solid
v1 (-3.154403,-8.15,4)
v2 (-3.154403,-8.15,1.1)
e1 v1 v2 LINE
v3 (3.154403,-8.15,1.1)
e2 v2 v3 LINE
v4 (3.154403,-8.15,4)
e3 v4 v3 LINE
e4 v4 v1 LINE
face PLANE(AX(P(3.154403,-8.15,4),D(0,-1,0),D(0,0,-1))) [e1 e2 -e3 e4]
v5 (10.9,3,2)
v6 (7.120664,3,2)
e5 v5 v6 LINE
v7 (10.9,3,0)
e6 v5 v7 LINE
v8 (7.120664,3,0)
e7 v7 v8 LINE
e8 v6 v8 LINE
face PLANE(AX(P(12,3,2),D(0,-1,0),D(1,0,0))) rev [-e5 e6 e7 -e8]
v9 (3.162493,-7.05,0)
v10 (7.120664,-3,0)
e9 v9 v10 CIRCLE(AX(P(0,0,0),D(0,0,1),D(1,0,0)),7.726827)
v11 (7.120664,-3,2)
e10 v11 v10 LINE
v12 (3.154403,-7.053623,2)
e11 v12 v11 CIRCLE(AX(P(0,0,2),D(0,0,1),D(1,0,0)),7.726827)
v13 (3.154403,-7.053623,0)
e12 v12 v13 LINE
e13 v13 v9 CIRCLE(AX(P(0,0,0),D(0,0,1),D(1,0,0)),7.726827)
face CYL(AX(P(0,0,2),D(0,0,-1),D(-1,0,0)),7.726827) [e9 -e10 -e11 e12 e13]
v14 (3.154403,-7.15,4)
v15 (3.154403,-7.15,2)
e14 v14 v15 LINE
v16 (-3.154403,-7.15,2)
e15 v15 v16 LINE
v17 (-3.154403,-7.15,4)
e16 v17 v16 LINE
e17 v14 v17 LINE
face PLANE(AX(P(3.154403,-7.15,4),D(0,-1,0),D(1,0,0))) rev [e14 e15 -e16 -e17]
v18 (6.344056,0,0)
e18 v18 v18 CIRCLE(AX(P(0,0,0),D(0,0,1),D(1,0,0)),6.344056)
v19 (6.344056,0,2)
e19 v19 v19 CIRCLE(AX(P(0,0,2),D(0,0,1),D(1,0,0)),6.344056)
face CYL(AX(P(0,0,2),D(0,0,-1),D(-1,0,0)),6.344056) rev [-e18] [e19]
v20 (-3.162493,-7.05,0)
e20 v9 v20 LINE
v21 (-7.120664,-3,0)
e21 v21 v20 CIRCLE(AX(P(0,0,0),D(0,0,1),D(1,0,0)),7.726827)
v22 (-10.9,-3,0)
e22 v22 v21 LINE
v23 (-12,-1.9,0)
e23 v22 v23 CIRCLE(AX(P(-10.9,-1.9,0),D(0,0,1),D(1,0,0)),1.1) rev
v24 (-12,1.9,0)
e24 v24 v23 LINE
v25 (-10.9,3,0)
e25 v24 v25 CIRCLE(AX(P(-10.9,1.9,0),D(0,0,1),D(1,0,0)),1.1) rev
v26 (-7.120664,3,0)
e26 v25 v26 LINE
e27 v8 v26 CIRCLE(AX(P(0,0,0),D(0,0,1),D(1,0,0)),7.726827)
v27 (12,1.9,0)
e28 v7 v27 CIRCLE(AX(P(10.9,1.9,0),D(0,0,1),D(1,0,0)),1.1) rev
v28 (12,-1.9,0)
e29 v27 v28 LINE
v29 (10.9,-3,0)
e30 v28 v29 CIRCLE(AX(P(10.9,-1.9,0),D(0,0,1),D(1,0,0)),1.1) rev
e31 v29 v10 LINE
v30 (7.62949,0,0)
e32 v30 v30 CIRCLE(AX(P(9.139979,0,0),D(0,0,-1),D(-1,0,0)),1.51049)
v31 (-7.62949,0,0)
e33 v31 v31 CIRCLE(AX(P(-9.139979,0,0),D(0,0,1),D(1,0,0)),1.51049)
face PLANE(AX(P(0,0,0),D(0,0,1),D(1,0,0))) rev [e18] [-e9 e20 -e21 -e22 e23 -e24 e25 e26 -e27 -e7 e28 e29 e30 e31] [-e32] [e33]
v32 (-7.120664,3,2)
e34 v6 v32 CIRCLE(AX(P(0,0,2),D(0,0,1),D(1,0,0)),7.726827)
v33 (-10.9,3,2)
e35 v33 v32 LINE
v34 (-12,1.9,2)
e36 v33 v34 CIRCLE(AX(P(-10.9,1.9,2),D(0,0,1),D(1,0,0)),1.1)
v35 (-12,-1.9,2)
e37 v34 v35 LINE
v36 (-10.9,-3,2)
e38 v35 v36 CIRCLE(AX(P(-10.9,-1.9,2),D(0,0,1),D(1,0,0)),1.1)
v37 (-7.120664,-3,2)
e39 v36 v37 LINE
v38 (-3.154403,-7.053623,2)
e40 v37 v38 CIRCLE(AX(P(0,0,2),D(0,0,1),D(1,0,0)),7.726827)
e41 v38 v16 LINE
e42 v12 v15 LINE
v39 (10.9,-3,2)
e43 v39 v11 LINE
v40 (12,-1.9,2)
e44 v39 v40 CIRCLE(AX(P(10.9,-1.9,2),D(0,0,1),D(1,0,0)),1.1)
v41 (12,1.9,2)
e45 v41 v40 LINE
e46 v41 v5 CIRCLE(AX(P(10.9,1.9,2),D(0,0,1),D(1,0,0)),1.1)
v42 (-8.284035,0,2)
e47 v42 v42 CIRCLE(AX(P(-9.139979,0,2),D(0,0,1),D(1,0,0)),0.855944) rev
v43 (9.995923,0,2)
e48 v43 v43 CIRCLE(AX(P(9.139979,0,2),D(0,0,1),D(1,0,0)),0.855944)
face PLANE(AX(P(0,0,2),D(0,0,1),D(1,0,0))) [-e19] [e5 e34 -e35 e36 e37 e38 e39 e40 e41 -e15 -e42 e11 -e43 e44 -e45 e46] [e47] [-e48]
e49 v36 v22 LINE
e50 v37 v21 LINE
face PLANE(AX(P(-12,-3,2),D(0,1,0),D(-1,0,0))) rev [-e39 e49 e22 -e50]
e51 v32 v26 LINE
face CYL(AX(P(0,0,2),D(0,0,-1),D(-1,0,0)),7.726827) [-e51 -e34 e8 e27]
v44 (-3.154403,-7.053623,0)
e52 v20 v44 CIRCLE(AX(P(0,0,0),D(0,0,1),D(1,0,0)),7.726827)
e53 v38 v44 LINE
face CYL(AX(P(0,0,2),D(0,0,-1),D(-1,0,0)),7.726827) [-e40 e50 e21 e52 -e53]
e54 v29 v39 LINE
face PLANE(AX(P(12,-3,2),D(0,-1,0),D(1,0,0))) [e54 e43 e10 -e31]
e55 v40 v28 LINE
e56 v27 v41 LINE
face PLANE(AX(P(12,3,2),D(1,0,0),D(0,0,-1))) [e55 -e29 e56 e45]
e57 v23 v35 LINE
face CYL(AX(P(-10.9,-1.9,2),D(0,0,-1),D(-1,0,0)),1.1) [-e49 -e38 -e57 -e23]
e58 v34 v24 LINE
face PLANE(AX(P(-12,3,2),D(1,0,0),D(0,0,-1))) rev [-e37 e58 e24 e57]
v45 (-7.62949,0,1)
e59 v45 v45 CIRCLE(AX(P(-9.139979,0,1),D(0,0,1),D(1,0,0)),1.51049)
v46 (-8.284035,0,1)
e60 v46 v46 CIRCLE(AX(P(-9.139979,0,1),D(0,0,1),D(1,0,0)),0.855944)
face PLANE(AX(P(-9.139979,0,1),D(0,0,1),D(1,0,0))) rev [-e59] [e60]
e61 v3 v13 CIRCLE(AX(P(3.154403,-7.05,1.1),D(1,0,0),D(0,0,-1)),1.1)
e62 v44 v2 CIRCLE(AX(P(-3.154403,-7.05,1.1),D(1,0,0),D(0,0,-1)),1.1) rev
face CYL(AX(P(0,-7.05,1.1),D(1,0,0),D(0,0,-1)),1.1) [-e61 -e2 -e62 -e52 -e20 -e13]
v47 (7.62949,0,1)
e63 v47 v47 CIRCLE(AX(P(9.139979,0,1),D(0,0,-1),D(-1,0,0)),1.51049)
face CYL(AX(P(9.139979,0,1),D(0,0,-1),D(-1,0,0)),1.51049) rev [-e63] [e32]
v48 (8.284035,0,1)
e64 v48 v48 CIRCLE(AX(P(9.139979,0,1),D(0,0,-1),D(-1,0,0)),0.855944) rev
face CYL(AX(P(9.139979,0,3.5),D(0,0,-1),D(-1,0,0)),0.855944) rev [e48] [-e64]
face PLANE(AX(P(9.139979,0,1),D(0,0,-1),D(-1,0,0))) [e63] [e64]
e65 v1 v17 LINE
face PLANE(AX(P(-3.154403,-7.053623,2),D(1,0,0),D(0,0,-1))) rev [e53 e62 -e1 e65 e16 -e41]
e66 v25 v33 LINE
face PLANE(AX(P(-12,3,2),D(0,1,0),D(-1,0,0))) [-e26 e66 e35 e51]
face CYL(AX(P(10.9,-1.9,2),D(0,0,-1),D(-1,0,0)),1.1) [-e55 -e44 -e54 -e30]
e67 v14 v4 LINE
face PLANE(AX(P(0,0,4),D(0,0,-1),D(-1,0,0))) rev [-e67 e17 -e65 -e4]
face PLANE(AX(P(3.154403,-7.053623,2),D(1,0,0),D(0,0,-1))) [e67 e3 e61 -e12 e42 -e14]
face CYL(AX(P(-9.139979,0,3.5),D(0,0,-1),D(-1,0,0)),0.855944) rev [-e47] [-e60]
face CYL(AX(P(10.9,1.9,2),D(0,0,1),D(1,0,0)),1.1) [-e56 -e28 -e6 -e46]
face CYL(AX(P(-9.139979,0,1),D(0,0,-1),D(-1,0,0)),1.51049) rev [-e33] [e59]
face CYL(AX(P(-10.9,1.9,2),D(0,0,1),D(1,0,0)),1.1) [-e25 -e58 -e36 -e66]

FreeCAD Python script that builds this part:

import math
import FreeCAD as App
import Part
import Sketcher
Q = App.Units.Quantity


def edges_at(feature, points):
    """Names of the edges that pass closest to the given points."""
    edges = feature.Shape.Edges
    near = lambda p: min(range(len(edges)), key=lambda i: edges[i].distToShape(Part.Vertex(*p))[0])
    return sorted({f"Edge{near(p) + 1}" for p in points})


def add_polygon(sketch, points):
    """Adds a closed chain of lines whose ends are joined by coincident constraints."""
    first, n = sketch.GeometryCount, len(points)
    for a, b in zip(points, points[1:] + points[:1]):
        sketch.addGeometry(Part.LineSegment(App.Vector(*a, 0), App.Vector(*b, 0)), False)
    for i in range(n):
        sketch.addConstraint(Sketcher.Constraint("Coincident", first + i, 2, first + (i + 1) % n, 1))

doc = App.newDocument("Part")
body = doc.addObject("PartDesign::Body", "Body")

# Sketch on XY plane
sketch1 = doc.addObject("Sketcher::SketchObject", "Sketch")
body.addObject(sketch1)
sketch1.AttachmentSupport = (doc.XY_Plane, [""])
sketch1.MapMode = "FlatFace"
sketch1.addGeometry(Part.LineSegment(App.Vector(-3.15, -7.15, 0), App.Vector(3.15, -7.15, 0)), False)
sketch1.addGeometry(Part.LineSegment(App.Vector(3.15, -7.15, 0), App.Vector(3.15, -7.05, 0)), False)
sketch1.addGeometry(Part.ArcOfCircle(Part.Circle(App.Vector(0, 0, 0), App.Vector(0, 0, 1), 7.73), math.radians(-66), math.radians(-23)), False)
sketch1.addGeometry(Part.LineSegment(App.Vector(7.12, -3, 0), App.Vector(12, -3, 0)), False)
sketch1.addGeometry(Part.LineSegment(App.Vector(12, -3, 0), App.Vector(12, 3, 0)), False)
sketch1.addGeometry(Part.LineSegment(App.Vector(12, 3, 0), App.Vector(7.12, 3, 0)), False)
sketch1.addGeometry(Part.ArcOfCircle(Part.Circle(App.Vector(0, 0, 0), App.Vector(0, 0, 1), 7.73), math.radians(23), math.radians(157)), False)
sketch1.addGeometry(Part.LineSegment(App.Vector(-7.12, 3, 0), App.Vector(-12, 3, 0)), False)
sketch1.addGeometry(Part.LineSegment(App.Vector(-12, 3, 0), App.Vector(-12, -3, 0)), False)
sketch1.addGeometry(Part.LineSegment(App.Vector(-12, -3, 0), App.Vector(-7.12, -3, 0)), False)
sketch1.addGeometry(Part.ArcOfCircle(Part.Circle(App.Vector(0, 0, 0), App.Vector(0, 0, 1), 7.73), math.radians(-157), math.radians(-114)), False)
sketch1.addGeometry(Part.LineSegment(App.Vector(-3.15, -7.05, 0), App.Vector(-3.15, -7.15, 0)), False)
sketch1.addGeometry(Part.Circle(App.Vector(0, 0, 0), App.Vector(0, 0, 1), 6.34), False)
sketch1.addConstraint(Sketcher.Constraint("Coincident", 0, 2, 1, 1))
sketch1.addConstraint(Sketcher.Constraint("Coincident", 1, 2, 2, 1))
sketch1.addConstraint(Sketcher.Constraint("Coincident", 2, 2, 3, 1))
sketch1.addConstraint(Sketcher.Constraint("Coincident", 3, 2, 4, 1))
sketch1.addConstraint(Sketcher.Constraint("Coincident", 4, 2, 5, 1))
sketch1.addConstraint(Sketcher.Constraint("Coincident", 5, 2, 6, 1))
sketch1.addConstraint(Sketcher.Constraint("Coincident", 6, 2, 7, 1))
sketch1.addConstraint(Sketcher.Constraint("Coincident", 7, 2, 8, 1))
sketch1.addConstraint(Sketcher.Constraint("Coincident", 8, 2, 9, 1))
sketch1.addConstraint(Sketcher.Constraint("Coincident", 9, 2, 10, 1))
sketch1.addConstraint(Sketcher.Constraint("Coincident", 10, 2, 11, 1))
sketch1.addConstraint(Sketcher.Constraint("Coincident", 11, 2, 0, 1))
sketch1.addConstraint(Sketcher.Constraint("Horizontal", 0))
sketch1.addConstraint(Sketcher.Constraint("Vertical", 1))
sketch1.addConstraint(Sketcher.Constraint("Horizontal", 3))
sketch1.addConstraint(Sketcher.Constraint("Vertical", 4))
sketch1.addConstraint(Sketcher.Constraint("Horizontal", 5))
sketch1.addConstraint(Sketcher.Constraint("Horizontal", 7))
sketch1.addConstraint(Sketcher.Constraint("Vertical", 8))
sketch1.addConstraint(Sketcher.Constraint("Horizontal", 9))
sketch1.addConstraint(Sketcher.Constraint("Vertical", 11))
sketch1.addConstraint(Sketcher.Constraint("Coincident", 2, 3, -1, 1))
sketch1.addConstraint(Sketcher.Constraint("Coincident", 6, 3, -1, 1))
sketch1.addConstraint(Sketcher.Constraint("Coincident", 10, 3, -1, 1))
sketch1.addConstraint(Sketcher.Constraint("Coincident", 12, 3, -1, 1))
sketch1.addConstraint(Sketcher.Constraint("Equal", 2, 6))
sketch1.addConstraint(Sketcher.Constraint("Equal", 6, 10))
sketch1.addConstraint(Sketcher.Constraint("Symmetric", 3, 2, 7, 2, -1, 1))
sketch1.addConstraint(Sketcher.Constraint("Horizontal", 5, 2, 6, 2))
sketch1.addConstraint(Sketcher.Constraint("Horizontal", 3, 2, 8, 2))
sketch1.addConstraint(Sketcher.Constraint("Horizontal", 1, 2, 10, 2))
sketch1.addConstraint(Sketcher.Constraint("DistanceY", 4, 1, 4, 2, Q("6 mm")))
sketch1.addConstraint(Sketcher.Constraint("DistanceX", -1, 1, 3, 2, Q("12 mm")))
sketch1.addConstraint(Sketcher.Constraint("Diameter", 12, Q("12.688112 mm")))
sketch1.addConstraint(Sketcher.Constraint("DistanceY", 0, 2, -1, 1, Q("7.15 mm")))
sketch1.addConstraint(Sketcher.Constraint("Radius", 2, Q("7.726827 mm")))
sketch1.addConstraint(Sketcher.Constraint("DistanceX", 0, 1, 0, 2, Q("6.308806 mm")))
pad1 = doc.addObject("PartDesign::Pad", "Pad")
body.addObject(pad1)
pad1.Profile = sketch1
pad1.Length = 2

# Sketch on XY plane
sketch2 = doc.addObject("Sketcher::SketchObject", "Sketch001")
body.addObject(sketch2)
sketch2.AttachmentSupport = (doc.XY_Plane, [""])
sketch2.MapMode = "FlatFace"
add_polygon(sketch2, [(-3.2, -7.2), (-3.2, -8.2), (3.2, -8.2), (3.2, -7.2)])  # lines 0-3
sketch2.addConstraint(Sketcher.Constraint("Vertical", 0))
sketch2.addConstraint(Sketcher.Constraint("Horizontal", 1))
sketch2.addConstraint(Sketcher.Constraint("Vertical", 2))
sketch2.addConstraint(Sketcher.Constraint("Horizontal", 3))
sketch2.addConstraint(Sketcher.Constraint("DistanceY", 0, 2, 0, 1, Q("1 mm")))
sketch2.addConstraint(Sketcher.Constraint("DistanceY", 0, 2, -1, 1, Q("8.15 mm")))
sketch2.addConstraint(Sketcher.Constraint("DistanceX", 1, 1, 1, 2, Q("6.308806 mm")))
sketch2.addConstraint(Sketcher.Constraint("DistanceX", 0, 2, -1, 1, Q("3.154403 mm")))
pad2 = doc.addObject("PartDesign::Pad", "Pad001")
body.addObject(pad2)
pad2.Profile = sketch2
pad2.Length = 4

# Sketch on XY plane
sketch3 = doc.addObject("Sketcher::SketchObject", "Sketch002")
body.addObject(sketch3)
sketch3.AttachmentSupport = (doc.XY_Plane, [""])
sketch3.MapMode = "FlatFace"
sketch3.addGeometry(Part.Circle(App.Vector(-9.1, 0, 0), App.Vector(0, 0, 1), 0.9), False)
sketch3.addGeometry(Part.Circle(App.Vector(9.1, 0, 0), App.Vector(0, 0, 1), 0.9), False)
sketch3.addConstraint(Sketcher.Constraint("Equal", 0, 1))
sketch3.addConstraint(Sketcher.Constraint("Symmetric", 0, 3, 1, 3, -1, 1))
sketch3.addConstraint(Sketcher.Constraint("PointOnObject", 0, 3, -1))
sketch3.addConstraint(Sketcher.Constraint("Diameter", 0, Q("1.711888 mm")))
sketch3.addConstraint(Sketcher.Constraint("DistanceX", 0, 3, -1, 1, Q("9.139979 mm")))
pocket1 = doc.addObject("PartDesign::Pocket", "Pocket")
body.addObject(pocket1)
pocket1.Profile = sketch3
pocket1.Length = 3.5
pocket1.Reversed = True

# Sketch on XY plane
sketch4 = doc.addObject("Sketcher::SketchObject", "Sketch003")
body.addObject(sketch4)
sketch4.AttachmentSupport = (doc.XY_Plane, [""])
sketch4.MapMode = "FlatFace"
sketch4.addGeometry(Part.Circle(App.Vector(-9.1, 0, 0), App.Vector(0, 0, 1), 1.5), False)
sketch4.addGeometry(Part.Circle(App.Vector(9.1, 0, 0), App.Vector(0, 0, 1), 1.5), False)
sketch4.addConstraint(Sketcher.Constraint("Equal", 0, 1))
sketch4.addConstraint(Sketcher.Constraint("Symmetric", 0, 3, 1, 3, -1, 1))
sketch4.addConstraint(Sketcher.Constraint("PointOnObject", 0, 3, -1))
sketch4.addConstraint(Sketcher.Constraint("Diameter", 0, Q("3.020979 mm")))
sketch4.addConstraint(Sketcher.Constraint("DistanceX", 0, 3, -1, 1, Q("9.139979 mm")))
pocket2 = doc.addObject("PartDesign::Pocket", "Pocket001")
body.addObject(pocket2)
pocket2.Profile = sketch4
pocket2.Length = 1
pocket2.Reversed = True
doc.recompute()

fillet = doc.addObject("PartDesign::Fillet", "Fillet")
body.addObject(fillet)
fillet.Base = (pocket2, edges_at(pocket2, [(0, -8.15, 0)]))
fillet.Radius = 1.1
doc.recompute()

fillet2 = doc.addObject("PartDesign::Fillet", "Fillet001")
body.addObject(fillet2)
fillet2.Base = (fillet, edges_at(fillet, [
    (12, -3, 1),
    (12, 3, 1),
    (-12, 3, 1),
    (-12, -3, 1),
]))
fillet2.Radius = 1.1

doc.recompute()
